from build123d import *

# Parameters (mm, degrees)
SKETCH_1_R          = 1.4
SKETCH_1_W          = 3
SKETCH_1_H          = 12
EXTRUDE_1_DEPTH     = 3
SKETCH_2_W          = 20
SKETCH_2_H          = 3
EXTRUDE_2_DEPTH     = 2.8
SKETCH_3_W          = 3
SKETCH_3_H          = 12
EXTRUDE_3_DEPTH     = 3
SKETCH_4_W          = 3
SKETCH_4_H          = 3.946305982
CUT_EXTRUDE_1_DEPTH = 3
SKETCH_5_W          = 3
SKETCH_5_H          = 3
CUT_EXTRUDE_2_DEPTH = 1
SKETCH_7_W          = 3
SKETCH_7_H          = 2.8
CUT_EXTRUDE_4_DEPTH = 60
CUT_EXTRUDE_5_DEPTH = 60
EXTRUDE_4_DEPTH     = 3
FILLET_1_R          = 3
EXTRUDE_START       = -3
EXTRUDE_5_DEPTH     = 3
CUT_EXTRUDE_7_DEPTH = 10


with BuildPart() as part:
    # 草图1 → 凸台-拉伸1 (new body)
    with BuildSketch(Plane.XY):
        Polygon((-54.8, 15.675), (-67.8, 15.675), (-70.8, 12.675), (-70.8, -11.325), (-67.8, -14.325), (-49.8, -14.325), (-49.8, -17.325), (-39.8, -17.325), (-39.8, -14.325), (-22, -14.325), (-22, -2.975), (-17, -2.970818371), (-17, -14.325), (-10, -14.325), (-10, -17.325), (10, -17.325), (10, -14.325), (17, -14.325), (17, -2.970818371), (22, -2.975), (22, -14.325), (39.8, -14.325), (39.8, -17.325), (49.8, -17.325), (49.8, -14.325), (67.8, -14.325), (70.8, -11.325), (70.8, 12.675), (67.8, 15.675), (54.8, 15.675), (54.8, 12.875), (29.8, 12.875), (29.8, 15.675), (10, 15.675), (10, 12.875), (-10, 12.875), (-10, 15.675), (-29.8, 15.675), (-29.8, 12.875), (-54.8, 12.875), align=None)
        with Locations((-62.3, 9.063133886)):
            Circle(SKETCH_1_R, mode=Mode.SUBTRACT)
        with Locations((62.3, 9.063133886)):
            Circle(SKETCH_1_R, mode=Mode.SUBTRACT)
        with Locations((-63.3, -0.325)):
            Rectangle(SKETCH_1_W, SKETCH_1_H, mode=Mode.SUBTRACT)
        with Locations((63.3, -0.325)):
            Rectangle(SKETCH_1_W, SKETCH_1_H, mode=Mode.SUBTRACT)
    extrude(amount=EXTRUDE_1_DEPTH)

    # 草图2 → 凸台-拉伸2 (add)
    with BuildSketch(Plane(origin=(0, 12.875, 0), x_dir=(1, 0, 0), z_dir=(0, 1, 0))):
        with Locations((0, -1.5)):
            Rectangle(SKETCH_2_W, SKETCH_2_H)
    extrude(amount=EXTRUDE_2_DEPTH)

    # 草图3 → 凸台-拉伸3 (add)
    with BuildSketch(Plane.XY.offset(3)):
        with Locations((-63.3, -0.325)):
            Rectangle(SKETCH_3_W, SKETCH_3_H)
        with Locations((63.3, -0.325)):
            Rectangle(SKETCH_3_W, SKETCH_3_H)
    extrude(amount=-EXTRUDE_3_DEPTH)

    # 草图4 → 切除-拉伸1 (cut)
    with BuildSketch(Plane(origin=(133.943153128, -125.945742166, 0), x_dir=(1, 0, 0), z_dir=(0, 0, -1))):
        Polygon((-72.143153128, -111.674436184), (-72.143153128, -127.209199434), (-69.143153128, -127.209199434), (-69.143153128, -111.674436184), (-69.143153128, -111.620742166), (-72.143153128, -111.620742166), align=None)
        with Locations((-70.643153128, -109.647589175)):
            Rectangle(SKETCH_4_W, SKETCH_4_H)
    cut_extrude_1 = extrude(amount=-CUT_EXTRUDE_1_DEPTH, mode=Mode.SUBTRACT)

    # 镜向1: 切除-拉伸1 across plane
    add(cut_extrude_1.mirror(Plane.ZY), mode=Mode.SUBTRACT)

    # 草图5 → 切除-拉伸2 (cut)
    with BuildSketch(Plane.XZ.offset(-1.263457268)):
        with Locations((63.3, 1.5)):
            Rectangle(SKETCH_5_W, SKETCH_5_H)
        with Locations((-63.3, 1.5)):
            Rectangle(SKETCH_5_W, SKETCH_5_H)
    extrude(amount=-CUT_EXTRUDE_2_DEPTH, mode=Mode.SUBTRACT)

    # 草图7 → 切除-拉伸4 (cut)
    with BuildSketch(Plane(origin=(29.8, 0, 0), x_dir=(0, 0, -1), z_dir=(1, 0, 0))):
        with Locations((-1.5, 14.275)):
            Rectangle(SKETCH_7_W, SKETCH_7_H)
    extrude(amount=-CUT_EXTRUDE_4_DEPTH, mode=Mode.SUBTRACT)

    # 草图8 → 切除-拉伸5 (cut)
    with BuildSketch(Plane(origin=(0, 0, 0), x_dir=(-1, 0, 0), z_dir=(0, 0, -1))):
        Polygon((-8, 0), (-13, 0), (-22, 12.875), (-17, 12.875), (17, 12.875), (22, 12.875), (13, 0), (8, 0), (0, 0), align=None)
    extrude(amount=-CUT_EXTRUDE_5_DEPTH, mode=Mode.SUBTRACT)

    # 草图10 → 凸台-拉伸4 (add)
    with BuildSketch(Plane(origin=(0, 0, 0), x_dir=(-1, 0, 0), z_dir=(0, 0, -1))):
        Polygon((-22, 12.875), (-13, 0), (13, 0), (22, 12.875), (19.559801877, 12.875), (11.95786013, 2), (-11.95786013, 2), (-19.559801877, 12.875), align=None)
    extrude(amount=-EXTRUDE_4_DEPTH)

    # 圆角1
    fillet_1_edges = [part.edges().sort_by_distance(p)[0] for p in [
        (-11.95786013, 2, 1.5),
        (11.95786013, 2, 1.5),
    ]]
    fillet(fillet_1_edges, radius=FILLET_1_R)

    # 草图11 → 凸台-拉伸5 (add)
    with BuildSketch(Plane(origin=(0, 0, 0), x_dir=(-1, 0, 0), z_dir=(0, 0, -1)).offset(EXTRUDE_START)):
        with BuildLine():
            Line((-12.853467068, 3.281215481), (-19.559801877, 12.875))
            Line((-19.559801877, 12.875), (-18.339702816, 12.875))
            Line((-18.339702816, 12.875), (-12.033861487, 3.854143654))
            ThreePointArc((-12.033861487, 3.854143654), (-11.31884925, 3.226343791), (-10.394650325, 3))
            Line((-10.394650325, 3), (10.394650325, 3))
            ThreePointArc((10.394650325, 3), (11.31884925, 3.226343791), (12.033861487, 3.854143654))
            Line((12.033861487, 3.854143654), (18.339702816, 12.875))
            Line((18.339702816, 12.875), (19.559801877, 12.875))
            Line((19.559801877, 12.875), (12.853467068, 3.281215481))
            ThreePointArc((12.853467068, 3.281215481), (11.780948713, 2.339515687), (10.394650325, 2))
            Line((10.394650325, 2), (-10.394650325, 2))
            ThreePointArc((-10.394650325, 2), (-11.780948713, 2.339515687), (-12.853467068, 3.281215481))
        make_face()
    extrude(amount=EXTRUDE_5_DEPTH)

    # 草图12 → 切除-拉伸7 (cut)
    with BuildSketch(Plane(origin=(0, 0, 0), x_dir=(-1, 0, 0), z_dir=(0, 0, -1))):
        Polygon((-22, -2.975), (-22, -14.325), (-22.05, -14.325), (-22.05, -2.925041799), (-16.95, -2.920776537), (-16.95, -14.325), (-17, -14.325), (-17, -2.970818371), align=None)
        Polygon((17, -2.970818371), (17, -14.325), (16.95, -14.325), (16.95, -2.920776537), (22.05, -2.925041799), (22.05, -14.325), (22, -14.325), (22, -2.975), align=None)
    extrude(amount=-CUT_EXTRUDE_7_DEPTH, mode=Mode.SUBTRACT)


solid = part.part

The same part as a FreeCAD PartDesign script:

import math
import FreeCAD as App
import Part
import Sketcher
Q = App.Units.Quantity


def edges_at(feature, points):
    """Names of the edges that pass closest to the given points."""
    edges = feature.Shape.Edges
    near = lambda p: min(range(len(edges)), key=lambda i: edges[i].distToShape(Part.Vertex(*p))[0])
    return sorted({f"Edge{near(p) + 1}" for p in points})


def add_polygon(sketch, points):
    """Adds a closed chain of lines whose ends are joined by coincident constraints."""
    first, n = sketch.GeometryCount, len(points)
    for a, b in zip(points, points[1:] + points[:1]):
        sketch.addGeometry(Part.LineSegment(App.Vector(*a, 0), App.Vector(*b, 0)), False)
    for i in range(n):
        sketch.addConstraint(Sketcher.Constraint("Coincident", first + i, 2, first + (i + 1) % n, 1))

doc = App.newDocument("Part")
body = doc.addObject("PartDesign::Body", "Body")

# Sketch on XY plane
sketch1 = body.newObject("Sketcher::SketchObject", "Sketch")
sketch1.AttachmentSupport = (doc.getObject("XY_Plane"), [""])
sketch1.MapMode = "FlatFace"
add_polygon(sketch1, [(-54.8, 15.675), (-67.8, 15.675), (-70.8, 12.675), (-70.8, -11.325), (-67.8, -14.325), (-49.8, -14.325), (-49.8, -17.325), (-39.8, -17.325), (-39.8, -14.325), (-22, -14.325), (-22, -2.975), (-17, -2.970818), (-17, -14.325), (-10, -14.325), (-10, -17.325), (10, -17.325), (10, -14.325), (17, -14.325), (17, -2.970818), (22, -2.975), (22, -14.325), (39.8, -14.325), (39.8, -17.325), (49.8, -17.325), (49.8, -14.325), (67.8, -14.325), (70.8, -11.325), (70.8, 12.675), (67.8, 15.675), (54.8, 15.675), (54.8, 12.875), (29.8, 12.875), (29.8, 15.675), (10, 15.675), (10, 12.875), (-10, 12.875), (-10, 15.675), (-29.8, 15.675), (-29.8, 12.875), (-54.8, 12.875)])  # lines 0-39
add_polygon(sketch1, [(-61.8, -6.325), (-64.8, -6.325), (-64.8, 5.675), (-61.8, 5.675)])  # lines 40-43
add_polygon(sketch1, [(64.8, -6.325), (61.8, -6.325), (61.8, 5.675), (64.8, 5.675)])  # lines 44-47
sketch1.addGeometry(Part.Circle(App.Vector(-62.3, 9.063134, 0), App.Vector(0, 0, 1), 1.4), False)  # 48
sketch1.addGeometry(Part.Circle(App.Vector(62.3, 9.063134, 0), App.Vector(0, 0, 1), 1.4), False)  # 49
sketch1.addConstraint([
    Sketcher.Constraint("Horizontal", 0),
    Sketcher.Constraint("Vertical", 2),
    Sketcher.Constraint("Horizontal", 4),
    Sketcher.Constraint("Vertical", 5),
    Sketcher.Constraint("Horizontal", 6),
    Sketcher.Constraint("Vertical", 7),
    Sketcher.Constraint("Horizontal", 8),
    Sketcher.Constraint("Vertical", 9),
    Sketcher.Constraint("Vertical", 11),
    Sketcher.Constraint("Horizontal", 12),
    Sketcher.Constraint("Vertical", 13),
    Sketcher.Constraint("Horizontal", 14),
    Sketcher.Constraint("Vertical", 15),
    Sketcher.Constraint("Horizontal", 16),
    Sketcher.Constraint("Vertical", 17),
    Sketcher.Constraint("Vertical", 19),
    Sketcher.Constraint("Horizontal", 20),
    Sketcher.Constraint("Vertical", 21),
    Sketcher.Constraint("Horizontal", 22),
    Sketcher.Constraint("Vertical", 23),
    Sketcher.Constraint("Horizontal", 24),
    Sketcher.Constraint("Vertical", 26),
    Sketcher.Constraint("Horizontal", 28),
    Sketcher.Constraint("Vertical", 29),
    Sketcher.Constraint("Horizontal", 30),
    Sketcher.Constraint("Vertical", 31),
    Sketcher.Constraint("Horizontal", 32),
    Sketcher.Constraint("Vertical", 33),
    Sketcher.Constraint("Horizontal", 34),
    Sketcher.Constraint("Vertical", 35),
    Sketcher.Constraint("Horizontal", 36),
    Sketcher.Constraint("Vertical", 37),
    Sketcher.Constraint("Horizontal", 38),
    Sketcher.Constraint("Vertical", 39),
    Sketcher.Constraint("Horizontal", 40),
    Sketcher.Constraint("Vertical", 41),
    Sketcher.Constraint("Horizontal", 42),
    Sketcher.Constraint("Vertical", 43),
    Sketcher.Constraint("Horizontal", 44),
    Sketcher.Constraint("Vertical", 45),
    Sketcher.Constraint("Horizontal", 46),
    Sketcher.Constraint("Vertical", 47),
    Sketcher.Constraint("Equal", 48, 49),
    Sketcher.Constraint("Symmetric", 48, 3, 49, 3, -2),
    Sketcher.Constraint("Symmetric", 12, 2, 15, 2, -2),
    Sketcher.Constraint("Symmetric", 10, 2, 17, 2, -2),
    Sketcher.Constraint("Symmetric", 9, 2, 18, 2, -2),
    Sketcher.Constraint("Symmetric", 7, 2, 20, 2, -2),
    Sketcher.Constraint("Symmetric", 5, 2, 22, 2, -2),
    Sketcher.Constraint("Symmetric", 3, 2, 24, 2, -2),
    Sketcher.Constraint("Symmetric", 2, 2, 25, 2, -2),
    Sketcher.Constraint("Symmetric", 0, 2, 27, 2, -2),
    Sketcher.Constraint("Symmetric", 32, 2, 35, 2, -2),
    Sketcher.Constraint("Symmetric", 30, 2, 37, 2, -2),
    Sketcher.Constraint("Symmetric", 43, 2, 44, 2, -2),
    Sketcher.Constraint("Symmetric", 41, 2, 46, 2, -2),
    Sketcher.Constraint("Perpendicular", 1, 3),
    Sketcher.Constraint("Perpendicular", 3, 25),
    Sketcher.Constraint("Perpendicular", 25, 27),
    Sketcher.Constraint("Horizontal", 4, 2, 7, 2),
    Sketcher.Constraint("Horizontal", 8, 2, 11, 2),
    Sketcher.Constraint("Horizontal", 6, 2, 13, 2),
    Sketcher.Constraint("Horizontal", 28, 2, 31, 2),
    Sketcher.Constraint("Horizontal", 30, 2, 33, 2),
    Sketcher.Constraint("Vertical", 0, 2, 3, 2),
    Sketcher.Constraint("Vertical", 15, 2, 32, 2),
    Sketcher.Constraint("Equal", 0, 28),
    Sketcher.Constraint("Equal", 46, 5),
    Sketcher.Constraint("Diameter", 48, Q("2.8 mm")),
    Sketcher.Constraint("DistanceX", 0, 2, 0, 1, Q("13 mm")),
    Sketcher.Constraint("DistanceX", 4, 1, 4, 2, Q("18 mm")),
    Sketcher.Constraint("DistanceX", 6, 1, 6, 2, Q("10 mm")),
    Sketcher.Constraint("DistanceX", 12, 1, 12, 2, Q("7 mm")),
    Sketcher.Constraint("DistanceX", 14, 1, 14, 2, Q("20 mm")),
    Sketcher.Constraint("DistanceX", 30, 2, 30, 1, Q("25 mm")),
    Sketcher.Constraint("DistanceX", 40, 2, 40, 1, Q("3 mm")),
    Sketcher.Constraint("DistanceY", 2, 2, 2, 1, Q("24 mm")),
    Sketcher.Constraint("DistanceY", 41, 1, 41, 2, Q("12 mm")),
    Sketcher.Constraint("Distance", 10, Q("5.000002 mm")),
    Sketcher.Constraint("DistanceX", 8, 1, 8, 2, Q("17.8 mm")),
    Sketcher.Constraint("DistanceY", 29, 2, 29, 1, Q("2.8 mm")),
    Sketcher.Constraint("DistanceX", 1, 2, 0, 2, Q("3 mm")),
    Sketcher.Constraint("DistanceX", 2, 2, 40, 2, Q("6 mm")),
    Sketcher.Constraint("DistanceY", 2, 2, 40, 2, Q("5 mm")),
    Sketcher.Constraint("DistanceY", 9, 1, 9, 2, Q("11.35 mm")),
    Sketcher.Constraint("DistanceX", 48, 3, -1, 1, Q("62.3 mm")),
    Sketcher.Constraint("DistanceY", -1, 1, 0, 2, Q("15.675 mm")),
    Sketcher.Constraint("DistanceY", 11, 2, 11, 1, Q("11.354182 mm")),
    Sketcher.Constraint("DistanceY", -1, 1, 48, 3, Q("9.063134 mm")),
])
pad1 = body.newObject("PartDesign::Pad", "Pad")
pad1.Profile = sketch1
pad1.Length = 3

# Sketch on XZ plane
sketch2 = body.newObject("Sketcher::SketchObject", "Sketch001")
sketch2.AttachmentSupport = (doc.getObject("XZ_Plane"), [""])
sketch2.MapMode = "FlatFace"
sketch2.AttachmentOffset = App.Placement(App.Vector(0, 0, -12.875), App.Rotation())
add_polygon(sketch2, [(-10, 0), (-10, 3), (10, 3), (10, 0)])  # lines 0-3
sketch2.addConstraint([
    Sketcher.Constraint("Vertical", 0),
    Sketcher.Constraint("Horizontal", 1),
    Sketcher.Constraint("Vertical", 2),
    Sketcher.Constraint("Horizontal", 3),
    Sketcher.Constraint("Symmetric", 2, 2, 3, 2, -1, 1),
    Sketcher.Constraint("DistanceX", 1, 1, 1, 2, Q("20 mm")),
    Sketcher.Constraint("DistanceY", 0, 1, 0, 2, Q("3 mm")),
])
pad2 = body.newObject("PartDesign::Pad", "Pad001")
pad2.Profile = sketch2
pad2.Length = 2.8
pad2.Reversed = True

# Sketch on XY plane
sketch3 = body.newObject("Sketcher::SketchObject", "Sketch002")
sketch3.AttachmentSupport = (doc.getObject("XY_Plane"), [""])
sketch3.MapMode = "FlatFace"
sketch3.AttachmentOffset = App.Placement(App.Vector(0, 0, 3), App.Rotation())
add_polygon(sketch3, [(-64.8, 5.675), (-64.8, -6.325), (-61.8, -6.325), (-61.8, 5.675)])  # lines 0-3
add_polygon(sketch3, [(61.8, 5.675), (61.8, -6.325), (64.8, -6.325), (64.8, 5.675)])  # lines 4-7
sketch3.addConstraint([
    Sketcher.Constraint("Vertical", 0),
    Sketcher.Constraint("Horizontal", 1),
    Sketcher.Constraint("Vertical", 2),
    Sketcher.Constraint("Horizontal", 3),
    Sketcher.Constraint("Vertical", 4),
    Sketcher.Constraint("Horizontal", 5),
    Sketcher.Constraint("Vertical", 6),
    Sketcher.Constraint("Horizontal", 7),
    Sketcher.Constraint("Symmetric", 1, 2, 4, 2, -2),
    Sketcher.Constraint("Symmetric", 3, 2, 6, 2, -2),
    Sketcher.Constraint("DistanceX", 1, 1, 1, 2, Q("3 mm")),
    Sketcher.Constraint("DistanceY", 0, 2, 0, 1, Q("12 mm")),
    Sketcher.Constraint("DistanceX", 0, 2, -1, 1, Q("64.8 mm")),
    Sketcher.Constraint("DistanceY", 0, 2, -1, 1, Q("6.325 mm")),
])
pad3 = body.newObject("PartDesign::Pad", "Pad002")
pad3.Profile = sketch3
pad3.Length = 3
pad3.Reversed = True

# Sketch on XY plane
sketch4 = body.newObject("Sketcher::SketchObject", "Sketch003")
sketch4.AttachmentSupport = (doc.getObject("XY_Plane"), [""])
sketch4.MapMode = "FlatFace"
add_polygon(sketch4, [(61.8, 1.263457), (64.8, 1.263457), (64.8, -18.271306), (61.8, -18.271306)])  # lines 0-3
sketch4.addConstraint([
    Sketcher.Constraint("Horizontal", 0),
    Sketcher.Constraint("Vertical", 1),
    Sketcher.Constraint("Horizontal", 2),
    Sketcher.Constraint("Vertical", 3),
    Sketcher.Constraint("DistanceX", 0, 1, 0, 2, Q("3 mm")),
    Sketcher.Constraint("DistanceX", -1, 1, 0, 2, Q("64.8 mm")),
    Sketcher.Constraint("DistanceY", 1, 2, 1, 1, Q("19.534763 mm")),
    Sketcher.Constraint("DistanceY", -1, 1, 0, 2, Q("1.263457 mm")),
])
pocket1 = body.newObject("PartDesign::Pocket", "Pocket")
pocket1.Profile = sketch4
pocket1.Length = 3
pocket1.Reversed = True
doc.recompute()

mirrored = body.newObject("PartDesign::Mirrored", "Mirrored")
mirrored.Originals = [pocket1]
mirrored.MirrorPlane = (doc.getObject("YZ_Plane"), [""])
body.Tip = mirrored

# Sketch on XZ plane
sketch5 = body.newObject("Sketcher::SketchObject", "Sketch004")
sketch5.AttachmentSupport = (doc.getObject("XZ_Plane"), [""])
sketch5.MapMode = "FlatFace"
sketch5.AttachmentOffset = App.Placement(App.Vector(0, 0, -1.263457), App.Rotation())
add_polygon(sketch5, [(61.8, 3), (61.8, 0), (64.8, 0), (64.8, 3)])  # lines 0-3
add_polygon(sketch5, [(-64.8, 3), (-64.8, 0), (-61.8, 0), (-61.8, 3)])  # lines 4-7
sketch5.addConstraint([
    Sketcher.Constraint("Vertical", 0),
    Sketcher.Constraint("Horizontal", 1),
    Sketcher.Constraint("Vertical", 2),
    Sketcher.Constraint("Horizontal", 3),
    Sketcher.Constraint("Vertical", 4),
    Sketcher.Constraint("Horizontal", 5),
    Sketcher.Constraint("Vertical", 6),
    Sketcher.Constraint("Horizontal", 7),
    Sketcher.Constraint("Symmetric", 1, 2, 4, 2, -1, 1),
    Sketcher.Constraint("Symmetric", 0, 2, 5, 2, -2),
    Sketcher.Constraint("Horizontal", 3, 2, 6, 2),
    Sketcher.Constraint("Equal", 7, 0),
    Sketcher.Constraint("DistanceX", 1, 1, 1, 2, Q("3 mm")),
    Sketcher.Constraint("DistanceX", -1, 1, 0, 2, Q("61.8 mm")),
])
pocket2 = body.newObject("PartDesign::Pocket", "Pocket001")
pocket2.Profile = sketch5
pocket2.Length = 1

# Sketch on YZ plane
sketch6 = body.newObject("Sketcher::SketchObject", "Sketch005")
sketch6.AttachmentSupport = (doc.getObject("YZ_Plane"), [""])
sketch6.MapMode = "FlatFace"
sketch6.AttachmentOffset = App.Placement(App.Vector(0, 0, 29.8), App.Rotation())
add_polygon(sketch6, [(15.675, 3), (12.875, 3), (12.875, 0), (15.675, 0)])  # lines 0-3
sketch6.addConstraint([
    Sketcher.Constraint("Horizontal", 0),
    Sketcher.Constraint("Vertical", 1),
    Sketcher.Constraint("Horizontal", 2),
    Sketcher.Constraint("Vertical", 3),
    Sketcher.Constraint("PointOnObject", 1, 2, -1),
    Sketcher.Constraint("DistanceY", 1, 2, 1, 1, Q("3 mm")),
    Sketcher.Constraint("DistanceX", 0, 2, 0, 1, Q("2.8 mm")),
    Sketcher.Constraint("DistanceX", -1, 1, 0, 2, Q("12.875 mm")),
])
pocket3 = body.newObject("PartDesign::Pocket", "Pocket002")
pocket3.Profile = sketch6
pocket3.Length = 60

# Sketch on XY plane
sketch7 = body.newObject("Sketcher::SketchObject", "Sketch006")
sketch7.AttachmentSupport = (doc.getObject("XY_Plane"), [""])
sketch7.MapMode = "FlatFace"
add_polygon(sketch7, [(13, 0), (-13, 0), (-22, 12.875), (22, 12.875)])  # lines 0-3
sketch7.addConstraint([
    Sketcher.Constraint("Horizontal", 0),
    Sketcher.Constraint("Horizontal", 2),
    Sketcher.Constraint("Symmetric", 0, 2, 3, 2, -1, 1),
    Sketcher.Constraint("Equal", 1, 3),
    Sketcher.Constraint("DistanceX", 0, 2, 0, 1, Q("26 mm")),
    Sketcher.Constraint("DistanceX", 2, 1, 2, 2, Q("44 mm")),
    Sketcher.Constraint("DistanceY", -1, 1, 1, 2, Q("12.875 mm")),
])
pocket4 = body.newObject("PartDesign::Pocket", "Pocket003")
pocket4.Profile = sketch7
pocket4.Length = 60
pocket4.Reversed = True

# Sketch on XY plane
sketch8 = body.newObject("Sketcher::SketchObject", "Sketch007")
sketch8.AttachmentSupport = (doc.getObject("XY_Plane"), [""])
sketch8.MapMode = "FlatFace"
add_polygon(sketch8, [(22, 12.875), (13, 0), (-13, 0), (-22, 12.875), (-19.559802, 12.875), (-11.95786, 2), (11.95786, 2), (19.559802, 12.875)])  # lines 0-7
sketch8.addConstraint([
    Sketcher.Constraint("Horizontal", 1),
    Sketcher.Constraint("Horizontal", 3),
    Sketcher.Constraint("Horizontal", 5),
    Sketcher.Constraint("Horizontal", 7),
    Sketcher.Constraint("Symmetric", 0, 2, 1, 2, -1, 1),
    Sketcher.Constraint("Symmetric", 3, 2, 6, 2, -2),
    Sketcher.Constraint("Parallel", 2, 4),
    Sketcher.Constraint("Parallel", 0, 6),
    Sketcher.Constraint("Equal", 3, 7),
    Sketcher.Constraint("DistanceX", 1, 2, 1, 1, Q("26 mm")),
    Sketcher.Constraint("DistanceX", 2, 2, -1, 1, Q("22 mm")),
    Sketcher.Constraint("DistanceY", -1, 1, 4, 2, Q("2 mm")),
    Sketcher.Constraint("DistanceX", 3, 1, 3, 2, Q("2.440198 mm")),
    Sketcher.Constraint("DistanceY", -1, 1, 2, 2, Q("12.875 mm")),
])
pad4 = body.newObject("PartDesign::Pad", "Pad003")
pad4.Profile = sketch8
pad4.Length = 3
doc.recompute()

fillet = body.newObject("PartDesign::Fillet", "Fillet")
fillet.Base = (pad4, edges_at(pad4, [(-11.958, 2, 1.5), (11.958, 2, 1.5)]))
fillet.Radius = 3

# Sketch on XY plane
sketch9 = body.newObject("Sketcher::SketchObject", "Sketch008")
sketch9.AttachmentSupport = (doc.getObject("XY_Plane"), [""])
sketch9.MapMode = "FlatFace"
sketch9.AttachmentOffset = App.Placement(App.Vector(0, 0, 3), App.Rotation())
sketch9.addGeometry([
    Part.LineSegment(App.Vector(19.559802, 12.875, 0), App.Vector(12.853467, 3.281215, 0)),  # 0
    Part.ArcOfCircle(Part.Circle(App.Vector(10.39465, 5, 0), App.Vector(0, 0, 1), 3), math.radians(-90), math.radians(-34.95467)),  # 1
    Part.LineSegment(App.Vector(10.39465, 2, 0), App.Vector(-10.39465, 2, 0)),  # 2
    Part.ArcOfCircle(Part.Circle(App.Vector(-10.39465, 5, 0), App.Vector(0, 0, 1), 3), math.radians(-145.04533), math.radians(-90)),  # 3
    Part.LineSegment(App.Vector(-12.853467, 3.281215, 0), App.Vector(-19.559802, 12.875, 0)),  # 4
    Part.LineSegment(App.Vector(-19.559802, 12.875, 0), App.Vector(-18.339703, 12.875, 0)),  # 5
    Part.LineSegment(App.Vector(-18.339703, 12.875, 0), App.Vector(-12.033861, 3.854144, 0)),  # 6
    Part.ArcOfCircle(Part.Circle(App.Vector(-10.39465, 5, 0), App.Vector(0, 0, 1), 2), math.radians(-145.04533), math.radians(-90)),  # 7
    Part.LineSegment(App.Vector(-10.39465, 3, 0), App.Vector(10.39465, 3, 0)),  # 8
    Part.ArcOfCircle(Part.Circle(App.Vector(10.39465, 5, 0), App.Vector(0, 0, 1), 2), math.radians(-90), math.radians(-34.95467)),  # 9
    Part.LineSegment(App.Vector(12.033861, 3.854144, 0), App.Vector(18.339703, 12.875, 0)),  # 10
    Part.LineSegment(App.Vector(18.339703, 12.875, 0), App.Vector(19.559802, 12.875, 0)),  # 11
], False)
sketch9.addConstraint([
    Sketcher.Constraint("Tangent", 0, 2, 1, 2),
    Sketcher.Constraint("Tangent", 1, 1, 2, 1),
    Sketcher.Constraint("Tangent", 2, 2, 3, 2),
    Sketcher.Constraint("Tangent", 3, 1, 4, 1),
    Sketcher.Constraint("Coincident", 4, 2, 5, 1),
    Sketcher.Constraint("Coincident", 5, 2, 6, 1),
    Sketcher.Constraint("Tangent", 6, 2, 7, 1),
    Sketcher.Constraint("Tangent", 7, 2, 8, 1),
    Sketcher.Constraint("Tangent", 8, 2, 9, 1),
    Sketcher.Constraint("Tangent", 9, 2, 10, 1),
    Sketcher.Constraint("Coincident", 10, 2, 11, 1),
    Sketcher.Constraint("Coincident", 11, 2, 0, 1),
    Sketcher.Constraint("Horizontal", 2),
    Sketcher.Constraint("Horizontal", 5),
    Sketcher.Constraint("Horizontal", 8),
    Sketcher.Constraint("Horizontal", 11),
    Sketcher.Constraint("Coincident", 7, 3, 3, 3),
    Sketcher.Constraint("Coincident", 9, 3, 1, 3),
    Sketcher.Constraint("Equal", 1, 3),
    Sketcher.Constraint("Symmetric", 0, 2, 3, 1, -2),
    Sketcher.Constraint("Symmetric", 5, 2, 10, 2, -2),
    Sketcher.Constraint("Parallel", 4, 6),
    Sketcher.Constraint("Radius", 1, Q("3 mm")),
    Sketcher.Constraint("Radius", 7, Q("2 mm")),
    Sketcher.Constraint("DistanceY", -1, 1, 1, 3, Q("5 mm")),
    Sketcher.Constraint("DistanceX", 2, 2, 2, 1, Q("20.789301 mm")),
    Sketcher.Constraint("DistanceX", 5, 1, 5, 2, Q("1.220099 mm")),
    Sketcher.Constraint("DistanceY", -1, 1, 4, 2, Q("12.875 mm")),
])
pad5 = body.newObject("PartDesign::Pad", "Pad004")
pad5.Profile = sketch9
pad5.Length = 3
pad5.Reversed = True

# Sketch on XY plane
sketch10 = body.newObject("Sketcher::SketchObject", "Sketch009")
sketch10.AttachmentSupport = (doc.getObject("XY_Plane"), [""])
sketch10.MapMode = "FlatFace"
add_polygon(sketch10, [(22, -14.325), (22, -2.975), (17, -2.970818), (17, -14.325), (16.95, -14.325), (16.95, -2.920777), (22.05, -2.925042), (22.05, -14.325)])  # lines 0-7
add_polygon(sketch10, [(-17, -14.325), (-17, -2.970818), (-22, -2.975), (-22, -14.325), (-22.05, -14.325), (-22.05, -2.925042), (-16.95, -2.920777), (-16.95, -14.325)])  # lines 8-15
sketch10.addConstraint([
    Sketcher.Constraint("Vertical", 0),
    Sketcher.Constraint("Vertical", 2),
    Sketcher.Constraint("Horizontal", 3),
    Sketcher.Constraint("Vertical", 4),
    Sketcher.Constraint("Vertical", 6),
    Sketcher.Constraint("Horizontal", 7),
    Sketcher.Constraint("Vertical", 8),
    Sketcher.Constraint("Vertical", 10),
    Sketcher.Constraint("Horizontal", 11),
    Sketcher.Constraint("Vertical", 12),
    Sketcher.Constraint("Vertical", 14),
    Sketcher.Constraint("Horizontal", 15),
    Sketcher.Constraint("Symmetric", 1, 2, 8, 2, -2),
    Sketcher.Constraint("Symmetric", 0, 2, 9, 2, -2),
    Sketcher.Constraint("Symmetric", 6, 2, 11, 2, -2),
    Sketcher.Constraint("Symmetric", 4, 2, 13, 2, -2),
    Sketcher.Constraint("Parallel", 1, 5),
    Sketcher.Constraint("Parallel", 9, 13),
    Sketcher.Constraint("Horizontal", 3, 2, 6, 2),
    Sketcher.Constraint("Horizontal", 11, 2, 14, 2),
    Sketcher.Constraint("Equal", 3, 7),
    Sketcher.Constraint("Distance", 1, Q("5.000002 mm")),
    Sketcher.Constraint("DistanceX", -1, 1, 0, 2, Q("22 mm")),
    Sketcher.Constraint("Distance", 5, Q("5.100002 mm")),
    Sketcher.Constraint("DistanceY", 0, 1, 0, 2, Q("11.35 mm")),
    Sketcher.Constraint("DistanceY", 0, 2, -1, 1, Q("2.975 mm")),
    Sketcher.Constraint("DistanceY", 2, 2, 2, 1, Q("11.354182 mm")),
    Sketcher.Constraint("DistanceY", 6, 2, 6, 1, Q("11.399958 mm")),
])
pocket5 = body.newObject("PartDesign::Pocket", "Pocket004")
pocket5.Profile = sketch10
pocket5.Length = 10
pocket5.Reversed = True

doc.recompute()
